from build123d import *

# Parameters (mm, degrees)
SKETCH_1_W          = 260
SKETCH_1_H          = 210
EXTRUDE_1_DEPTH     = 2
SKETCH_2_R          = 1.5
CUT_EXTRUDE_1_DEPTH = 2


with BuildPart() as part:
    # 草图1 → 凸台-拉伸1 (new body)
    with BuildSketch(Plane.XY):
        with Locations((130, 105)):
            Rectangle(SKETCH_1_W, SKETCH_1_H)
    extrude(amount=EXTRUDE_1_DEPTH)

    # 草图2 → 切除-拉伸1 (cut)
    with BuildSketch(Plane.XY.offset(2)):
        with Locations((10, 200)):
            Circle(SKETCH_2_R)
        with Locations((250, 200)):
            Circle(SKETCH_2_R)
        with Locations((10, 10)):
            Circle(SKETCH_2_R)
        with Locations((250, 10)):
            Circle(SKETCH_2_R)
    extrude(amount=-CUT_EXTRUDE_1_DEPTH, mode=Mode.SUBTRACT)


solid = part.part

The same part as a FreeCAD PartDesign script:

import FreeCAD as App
import Part
import Sketcher

V = App.Vector
Q = App.Units.Quantity

doc = App.newDocument("Part")
params = doc.addObject("Spreadsheet::Sheet", "Params")
for row, (alias, value) in enumerate([
    ("sketch1_width", "260 mm"),
    ("sketch1_height", "210 mm"),
    ("pad1_length", "2 mm"),
    ("sketch2_diameter", "3 mm"),
    ("pocket1_length", "2 mm"),
], start=1):
    params.set(f"A{row}", alias)
    params.set(f"B{row}", "=" + value)
    params.setAlias(f"B{row}", alias)

body = doc.addObject("PartDesign::Body", "Body")

# Sketch on XY plane
sketch1 = body.newObject("Sketcher::SketchObject", "Sketch")
sketch1.AttachmentSupport = (doc.getObject("XY_Plane"), [""])
sketch1.MapMode = "FlatFace"
sketch1.addGeometry(Part.LineSegment(V(0, 210, 0), V(0, 0, 0)), False)
sketch1.addGeometry(Part.LineSegment(V(0, 0, 0), V(260, 0, 0)), False)
sketch1.addGeometry(Part.LineSegment(V(260, 0, 0), V(260, 210, 0)), False)
sketch1.addGeometry(Part.LineSegment(V(260, 210, 0), V(0, 210, 0)), False)
sketch1.addConstraint(Sketcher.Constraint("Coincident", 0, 2, 1, 1))
sketch1.addConstraint(Sketcher.Constraint("Coincident", 1, 2, 2, 1))
sketch1.addConstraint(Sketcher.Constraint("Coincident", 2, 2, 3, 1))
sketch1.addConstraint(Sketcher.Constraint("Coincident", 3, 2, 0, 1))
sketch1.addConstraint(Sketcher.Constraint("Vertical", 0))
sketch1.addConstraint(Sketcher.Constraint("Horizontal", 1))
sketch1.addConstraint(Sketcher.Constraint("Vertical", 2))
sketch1.addConstraint(Sketcher.Constraint("Horizontal", 3))
sketch1.addConstraint(Sketcher.Constraint("Coincident", 0, 2, -1, 1))
sketch1.addConstraint(Sketcher.Constraint("DistanceX", 1, 1, 1, 2, Q("260 mm")))
sketch1.addConstraint(Sketcher.Constraint("DistanceY", 0, 2, 0, 1, Q("210 mm")))
sketch1.setExpression("Constraints[9]", "Params.sketch1_width")
sketch1.setExpression("Constraints[10]", "Params.sketch1_height")
pad1 = body.newObject("PartDesign::Pad", "Pad")
pad1.Profile = sketch1
pad1.setExpression("Length", "Params.pad1_length")

# Sketch on XY plane
sketch2 = body.newObject("Sketcher::SketchObject", "Sketch001")
sketch2.AttachmentSupport = (doc.getObject("XY_Plane"), [""])
sketch2.MapMode = "FlatFace"
sketch2.AttachmentOffset = App.Placement(V(0, 0, 2), App.Rotation())
sketch2.addGeometry(Part.Circle(V(10, 200, 0), V(0, 0, 1), 1.5), False)
sketch2.addGeometry(Part.Circle(V(250, 200, 0), V(0, 0, 1), 1.5), False)
sketch2.addGeometry(Part.Circle(V(10, 10, 0), V(0, 0, 1), 1.5), False)
sketch2.addGeometry(Part.Circle(V(250, 10, 0), V(0, 0, 1), 1.5), False)
sketch2.addConstraint(Sketcher.Constraint("Equal", 0, 1))
sketch2.addConstraint(Sketcher.Constraint("Equal", 1, 2))
sketch2.addConstraint(Sketcher.Constraint("Equal", 2, 3))
sketch2.addConstraint(Sketcher.Constraint("Horizontal", 0, 3, 1, 3))
sketch2.addConstraint(Sketcher.Constraint("Horizontal", 2, 3, 3, 3))
sketch2.addConstraint(Sketcher.Constraint("Vertical", 0, 3, 2, 3))
sketch2.addConstraint(Sketcher.Constraint("Vertical", 1, 3, 3, 3))
sketch2.addConstraint(Sketcher.Constraint("Diameter", 0, Q("3 mm")))
sketch2.addConstraint(Sketcher.Constraint("DistanceX", -1, 1, 0, 3, Q("10 mm")))
sketch2.addConstraint(Sketcher.Constraint("DistanceY", -1, 1, 0, 3, Q("200 mm")))
sketch2.addConstraint(Sketcher.Constraint("DistanceX", -1, 1, 1, 3, Q("250 mm")))
sketch2.addConstraint(Sketcher.Constraint("DistanceY", -1, 1, 2, 3, Q("10 mm")))
sketch2.setExpression("Constraints[7]", "Params.sketch2_diameter")
pocket1 = body.newObject("PartDesign::Pocket", "Pocket")
pocket1.Profile = sketch2
pocket1.setExpression("Length", "Params.pocket1_length")

doc.recompute()
